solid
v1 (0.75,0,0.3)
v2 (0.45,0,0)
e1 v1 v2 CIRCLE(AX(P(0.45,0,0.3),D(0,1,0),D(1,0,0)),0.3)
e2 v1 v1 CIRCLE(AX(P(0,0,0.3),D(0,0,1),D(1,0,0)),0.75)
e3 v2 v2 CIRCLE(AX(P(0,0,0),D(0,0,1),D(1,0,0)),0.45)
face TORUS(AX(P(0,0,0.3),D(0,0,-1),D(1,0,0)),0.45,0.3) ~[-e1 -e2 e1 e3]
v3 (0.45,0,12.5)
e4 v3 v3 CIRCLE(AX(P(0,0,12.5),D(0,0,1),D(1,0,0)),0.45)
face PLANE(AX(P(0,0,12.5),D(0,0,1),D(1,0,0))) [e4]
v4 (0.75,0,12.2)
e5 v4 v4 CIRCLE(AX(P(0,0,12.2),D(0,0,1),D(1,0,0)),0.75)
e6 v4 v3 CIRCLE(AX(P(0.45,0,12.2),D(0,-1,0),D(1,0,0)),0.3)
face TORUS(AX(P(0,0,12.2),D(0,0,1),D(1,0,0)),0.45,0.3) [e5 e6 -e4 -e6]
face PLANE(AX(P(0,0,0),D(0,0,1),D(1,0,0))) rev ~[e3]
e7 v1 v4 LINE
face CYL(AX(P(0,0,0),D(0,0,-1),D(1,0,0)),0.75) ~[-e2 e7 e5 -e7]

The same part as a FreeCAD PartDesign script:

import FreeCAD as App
import Part
import Sketcher


def edges_at(feature, points):
    """Names of the edges that pass closest to the given points."""
    edges = feature.Shape.Edges
    near = lambda p: min(range(len(edges)), key=lambda i: edges[i].distToShape(Part.Vertex(*p))[0])
    return sorted({f"Edge{near(p) + 1}" for p in points})

doc = App.newDocument("Part")
body = doc.addObject("PartDesign::Body", "Body")

# Sketch on XY plane
sketch1 = body.newObject("Sketcher::SketchObject", "Sketch")
sketch1.AttachmentSupport = (doc.getObject("XY_Plane"), [""])
sketch1.MapMode = "FlatFace"
sketch1.addGeometry(Part.Circle(App.Vector(0, 0, 0), App.Vector(0, 0, 1), 0.8), False)
sketch1.addConstraint([
    Sketcher.Constraint("Coincident", 0, 3, -1, 1),
    Sketcher.Constraint("Diameter", 0, 1.5),
])
pad1 = body.newObject("PartDesign::Pad", "Pad")
pad1.Profile = sketch1
pad1.Length = 12.5
doc.recompute()

fillet = body.newObject("PartDesign::Fillet", "Fillet")
fillet.Base = (pad1, edges_at(pad1, [(-0.699, -0.271, 12.5), (-0.699, -0.271, 0)]))
fillet.Radius = 0.3

doc.recompute()
